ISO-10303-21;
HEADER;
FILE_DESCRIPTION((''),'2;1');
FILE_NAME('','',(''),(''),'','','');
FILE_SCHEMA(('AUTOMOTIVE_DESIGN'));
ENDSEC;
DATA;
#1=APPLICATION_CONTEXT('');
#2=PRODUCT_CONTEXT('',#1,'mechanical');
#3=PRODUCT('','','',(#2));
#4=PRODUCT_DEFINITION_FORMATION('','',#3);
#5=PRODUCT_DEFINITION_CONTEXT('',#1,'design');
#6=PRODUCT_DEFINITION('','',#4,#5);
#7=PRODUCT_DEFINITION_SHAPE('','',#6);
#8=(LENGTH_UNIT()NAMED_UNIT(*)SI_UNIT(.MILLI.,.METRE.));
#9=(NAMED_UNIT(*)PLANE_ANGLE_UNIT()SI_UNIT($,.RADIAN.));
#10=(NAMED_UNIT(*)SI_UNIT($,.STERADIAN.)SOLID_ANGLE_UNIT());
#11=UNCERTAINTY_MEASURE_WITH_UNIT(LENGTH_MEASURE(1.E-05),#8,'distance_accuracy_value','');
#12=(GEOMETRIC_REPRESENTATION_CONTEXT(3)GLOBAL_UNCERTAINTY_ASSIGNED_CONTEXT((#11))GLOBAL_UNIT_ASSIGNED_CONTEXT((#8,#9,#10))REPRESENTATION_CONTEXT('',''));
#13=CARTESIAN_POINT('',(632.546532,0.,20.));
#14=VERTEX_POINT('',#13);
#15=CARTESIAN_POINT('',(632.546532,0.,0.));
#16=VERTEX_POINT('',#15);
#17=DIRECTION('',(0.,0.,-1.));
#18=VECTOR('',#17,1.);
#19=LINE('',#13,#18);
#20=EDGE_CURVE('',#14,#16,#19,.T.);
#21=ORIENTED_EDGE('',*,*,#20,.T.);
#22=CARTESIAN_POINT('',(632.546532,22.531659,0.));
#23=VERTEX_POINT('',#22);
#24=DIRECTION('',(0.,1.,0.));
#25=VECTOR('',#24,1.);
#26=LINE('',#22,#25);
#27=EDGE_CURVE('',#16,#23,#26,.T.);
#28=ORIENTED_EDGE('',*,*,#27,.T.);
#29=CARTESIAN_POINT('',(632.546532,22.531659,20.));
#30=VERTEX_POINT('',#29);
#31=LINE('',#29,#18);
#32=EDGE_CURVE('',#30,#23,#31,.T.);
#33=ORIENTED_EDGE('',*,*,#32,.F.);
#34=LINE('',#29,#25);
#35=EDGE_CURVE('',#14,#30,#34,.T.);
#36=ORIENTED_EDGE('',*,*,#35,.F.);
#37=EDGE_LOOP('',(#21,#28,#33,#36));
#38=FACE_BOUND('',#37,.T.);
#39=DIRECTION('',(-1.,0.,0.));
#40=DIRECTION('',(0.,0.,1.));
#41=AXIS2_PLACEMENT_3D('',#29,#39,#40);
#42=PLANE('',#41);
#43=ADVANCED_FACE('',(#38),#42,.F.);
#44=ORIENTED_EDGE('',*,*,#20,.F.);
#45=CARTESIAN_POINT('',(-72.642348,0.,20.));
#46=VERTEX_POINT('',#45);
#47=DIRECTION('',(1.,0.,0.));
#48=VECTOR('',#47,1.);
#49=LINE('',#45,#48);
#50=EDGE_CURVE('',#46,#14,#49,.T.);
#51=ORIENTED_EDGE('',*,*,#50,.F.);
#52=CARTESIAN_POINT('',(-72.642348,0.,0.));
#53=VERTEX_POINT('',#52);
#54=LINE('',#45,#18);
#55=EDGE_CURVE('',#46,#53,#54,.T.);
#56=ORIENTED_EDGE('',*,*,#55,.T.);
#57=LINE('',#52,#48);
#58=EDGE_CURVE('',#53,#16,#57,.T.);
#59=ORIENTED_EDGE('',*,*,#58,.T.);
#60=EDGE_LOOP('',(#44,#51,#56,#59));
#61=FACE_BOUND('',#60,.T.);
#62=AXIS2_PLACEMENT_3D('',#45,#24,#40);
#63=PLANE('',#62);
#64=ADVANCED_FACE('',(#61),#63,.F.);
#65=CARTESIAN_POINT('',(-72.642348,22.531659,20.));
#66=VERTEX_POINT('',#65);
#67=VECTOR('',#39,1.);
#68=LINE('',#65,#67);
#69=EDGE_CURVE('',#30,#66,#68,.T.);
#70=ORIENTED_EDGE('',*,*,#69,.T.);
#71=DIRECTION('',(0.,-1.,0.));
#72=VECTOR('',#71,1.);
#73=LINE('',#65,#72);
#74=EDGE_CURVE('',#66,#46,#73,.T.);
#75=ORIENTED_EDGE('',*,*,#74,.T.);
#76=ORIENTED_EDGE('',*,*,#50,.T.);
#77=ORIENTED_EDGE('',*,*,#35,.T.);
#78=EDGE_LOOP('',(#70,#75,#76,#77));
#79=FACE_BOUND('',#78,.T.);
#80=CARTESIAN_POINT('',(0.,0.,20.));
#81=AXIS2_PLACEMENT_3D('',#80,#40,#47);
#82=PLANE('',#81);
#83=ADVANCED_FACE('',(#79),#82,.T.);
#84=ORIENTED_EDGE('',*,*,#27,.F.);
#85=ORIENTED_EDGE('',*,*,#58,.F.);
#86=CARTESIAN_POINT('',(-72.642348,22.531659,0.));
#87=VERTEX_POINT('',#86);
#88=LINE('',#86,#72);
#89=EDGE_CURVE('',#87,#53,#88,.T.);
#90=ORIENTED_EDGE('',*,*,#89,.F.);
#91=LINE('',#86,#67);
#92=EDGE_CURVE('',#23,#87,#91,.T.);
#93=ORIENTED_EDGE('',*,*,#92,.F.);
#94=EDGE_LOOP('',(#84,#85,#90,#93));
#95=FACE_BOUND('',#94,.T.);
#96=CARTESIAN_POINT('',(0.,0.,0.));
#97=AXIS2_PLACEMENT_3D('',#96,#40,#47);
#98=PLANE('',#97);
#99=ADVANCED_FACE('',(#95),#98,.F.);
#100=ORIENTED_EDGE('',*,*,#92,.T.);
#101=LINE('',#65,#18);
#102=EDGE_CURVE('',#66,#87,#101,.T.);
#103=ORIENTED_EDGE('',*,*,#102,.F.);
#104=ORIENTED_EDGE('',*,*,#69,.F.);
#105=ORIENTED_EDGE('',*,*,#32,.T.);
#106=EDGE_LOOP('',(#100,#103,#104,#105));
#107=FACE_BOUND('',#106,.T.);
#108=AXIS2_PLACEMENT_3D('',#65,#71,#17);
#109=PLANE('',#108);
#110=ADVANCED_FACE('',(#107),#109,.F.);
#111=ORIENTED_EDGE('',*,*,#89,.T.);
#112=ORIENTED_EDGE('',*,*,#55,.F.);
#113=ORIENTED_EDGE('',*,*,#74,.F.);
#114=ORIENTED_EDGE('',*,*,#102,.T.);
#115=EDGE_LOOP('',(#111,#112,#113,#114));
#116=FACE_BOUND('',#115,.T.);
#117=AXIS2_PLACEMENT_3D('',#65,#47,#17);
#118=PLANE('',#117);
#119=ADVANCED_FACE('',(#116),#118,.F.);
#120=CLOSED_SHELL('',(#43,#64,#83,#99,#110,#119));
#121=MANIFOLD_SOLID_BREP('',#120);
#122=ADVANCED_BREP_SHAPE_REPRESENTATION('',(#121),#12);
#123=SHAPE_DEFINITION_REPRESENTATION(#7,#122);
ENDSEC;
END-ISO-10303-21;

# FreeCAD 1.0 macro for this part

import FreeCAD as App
import Part
import Sketcher

V = App.Vector


def add_polygon(sketch, points):
    """Adds a closed chain of lines whose ends are joined by coincident constraints."""
    first, n = sketch.GeometryCount, len(points)
    for a, b in zip(points, points[1:] + points[:1]):
        sketch.addGeometry(Part.LineSegment(App.Vector(*a, 0), App.Vector(*b, 0)), False)
    for i in range(n):
        sketch.addConstraint(Sketcher.Constraint("Coincident", first + i, 2, first + (i + 1) % n, 1))

doc = App.newDocument("Part")
body = doc.addObject("PartDesign::Body", "Body")

# Sketch on XY plane
sketch1 = body.newObject("Sketcher::SketchObject", "Sketch")
sketch1.AttachmentSupport = (doc.getObject("XY_Plane"), [""])
sketch1.MapMode = "FlatFace"
add_polygon(sketch1, [(-73, 23), (-73, 0), (633, 0), (633, 23)])  # lines 0-3
sketch1.addConstraint([
    Sketcher.Constraint("Vertical", 0),
    Sketcher.Constraint("Horizontal", 1),
    Sketcher.Constraint("Vertical", 2),
    Sketcher.Constraint("Horizontal", 3),
    Sketcher.Constraint("PointOnObject", 0, 2, -1),
    Sketcher.Constraint("DistanceX", 1, 1, 1, 2, 705.18888),
    Sketcher.Constraint("DistanceY", 0, 2, 0, 1, 22.531659),
    Sketcher.Constraint("DistanceX", 0, 2, -1, 1, 72.642348),
])
pad1 = body.newObject("PartDesign::Pad", "Pad")
pad1.Profile = sketch1
pad1.Length = 20

doc.recompute()
